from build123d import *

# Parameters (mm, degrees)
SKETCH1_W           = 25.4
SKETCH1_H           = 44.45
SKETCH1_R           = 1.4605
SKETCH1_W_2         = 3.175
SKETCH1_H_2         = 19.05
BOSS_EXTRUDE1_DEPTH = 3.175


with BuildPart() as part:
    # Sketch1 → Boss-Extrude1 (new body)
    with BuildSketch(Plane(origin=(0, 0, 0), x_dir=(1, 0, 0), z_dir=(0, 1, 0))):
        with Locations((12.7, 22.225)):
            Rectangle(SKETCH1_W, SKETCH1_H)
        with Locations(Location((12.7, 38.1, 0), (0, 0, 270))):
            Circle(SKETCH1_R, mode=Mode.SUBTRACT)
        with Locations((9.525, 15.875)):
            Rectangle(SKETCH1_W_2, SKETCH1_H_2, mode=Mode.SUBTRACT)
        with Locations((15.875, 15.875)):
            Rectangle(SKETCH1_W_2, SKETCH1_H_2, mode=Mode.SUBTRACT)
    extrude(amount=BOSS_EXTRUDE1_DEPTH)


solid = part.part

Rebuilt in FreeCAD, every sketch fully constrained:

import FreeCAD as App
import Part
import Sketcher

V = App.Vector
Q = App.Units.Quantity


def add_polygon(sketch, points):
    """Adds a closed chain of lines whose ends are joined by coincident constraints."""
    first, n = sketch.GeometryCount, len(points)
    for a, b in zip(points, points[1:] + points[:1]):
        sketch.addGeometry(Part.LineSegment(App.Vector(*a, 0), App.Vector(*b, 0)), False)
    for i in range(n):
        sketch.addConstraint(Sketcher.Constraint("Coincident", first + i, 2, first + (i + 1) % n, 1))

doc = App.newDocument("Part")
body = doc.addObject("PartDesign::Body", "Body")

# Sketch on XZ plane
sketch1 = body.newObject("Sketcher::SketchObject", "Sketch")
sketch1.AttachmentSupport = (doc.getObject("XZ_Plane"), [""])
sketch1.MapMode = "FlatFace"
add_polygon(sketch1, [(0, -44.5), (0, 0), (25.4, 0), (25.4, -44.5)])  # lines 0-3
add_polygon(sketch1, [(11.1, -6.3), (7.9, -6.3), (7.9, -25.4), (11.1, -25.4)])  # lines 4-7
add_polygon(sketch1, [(17.5, -6.3), (14.3, -6.3), (14.3, -25.4), (17.5, -25.4)])  # lines 8-11
sketch1.addGeometry(Part.Circle(V(12.7, -38.1, 0), V(0, 0, 1), 1.5), False)  # 12
sketch1.addConstraint([
    Sketcher.Constraint("Vertical", 0),
    Sketcher.Constraint("Horizontal", 1),
    Sketcher.Constraint("Vertical", 2),
    Sketcher.Constraint("Horizontal", 3),
    Sketcher.Constraint("Horizontal", 4),
    Sketcher.Constraint("Vertical", 5),
    Sketcher.Constraint("Horizontal", 6),
    Sketcher.Constraint("Vertical", 7),
    Sketcher.Constraint("Horizontal", 8),
    Sketcher.Constraint("Vertical", 9),
    Sketcher.Constraint("Horizontal", 10),
    Sketcher.Constraint("Vertical", 11),
    Sketcher.Constraint("Coincident", 0, 2, -1, 1),
    Sketcher.Constraint("Horizontal", 7, 2, 8, 2),
    Sketcher.Constraint("Horizontal", 6, 2, 9, 2),
    Sketcher.Constraint("Equal", 6, 8),
    Sketcher.Constraint("DistanceX", 1, 1, 1, 2, Q("1 in")),
    Sketcher.Constraint("Diameter", 12, Q("0.115 in")),
    Sketcher.Constraint("DistanceY", 5, 2, -1, 1, Q("1 in")),
    Sketcher.Constraint("DistanceY", 0, 1, 0, 2, Q("1.75 in")),
    Sketcher.Constraint("DistanceY", 5, 2, 5, 1, Q("0.75 in")),
    Sketcher.Constraint("DistanceX", -1, 1, 12, 3, Q("0.5 in")),
    Sketcher.Constraint("DistanceY", 12, 3, -1, 1, Q("1.5 in")),
    Sketcher.Constraint("DistanceX", 4, 2, 4, 1, Q("0.125 in")),
    Sketcher.Constraint("DistanceX", 4, 2, 8, 2, Q("0.25 in")),
    Sketcher.Constraint("DistanceX", -1, 1, 4, 2, Q("0.3125 in")),
])
pad1 = body.newObject("PartDesign::Pad", "Pad")
pad1.Profile = sketch1
pad1.Length = Q("0.125 in")
pad1.Reversed = True

doc.recompute()
